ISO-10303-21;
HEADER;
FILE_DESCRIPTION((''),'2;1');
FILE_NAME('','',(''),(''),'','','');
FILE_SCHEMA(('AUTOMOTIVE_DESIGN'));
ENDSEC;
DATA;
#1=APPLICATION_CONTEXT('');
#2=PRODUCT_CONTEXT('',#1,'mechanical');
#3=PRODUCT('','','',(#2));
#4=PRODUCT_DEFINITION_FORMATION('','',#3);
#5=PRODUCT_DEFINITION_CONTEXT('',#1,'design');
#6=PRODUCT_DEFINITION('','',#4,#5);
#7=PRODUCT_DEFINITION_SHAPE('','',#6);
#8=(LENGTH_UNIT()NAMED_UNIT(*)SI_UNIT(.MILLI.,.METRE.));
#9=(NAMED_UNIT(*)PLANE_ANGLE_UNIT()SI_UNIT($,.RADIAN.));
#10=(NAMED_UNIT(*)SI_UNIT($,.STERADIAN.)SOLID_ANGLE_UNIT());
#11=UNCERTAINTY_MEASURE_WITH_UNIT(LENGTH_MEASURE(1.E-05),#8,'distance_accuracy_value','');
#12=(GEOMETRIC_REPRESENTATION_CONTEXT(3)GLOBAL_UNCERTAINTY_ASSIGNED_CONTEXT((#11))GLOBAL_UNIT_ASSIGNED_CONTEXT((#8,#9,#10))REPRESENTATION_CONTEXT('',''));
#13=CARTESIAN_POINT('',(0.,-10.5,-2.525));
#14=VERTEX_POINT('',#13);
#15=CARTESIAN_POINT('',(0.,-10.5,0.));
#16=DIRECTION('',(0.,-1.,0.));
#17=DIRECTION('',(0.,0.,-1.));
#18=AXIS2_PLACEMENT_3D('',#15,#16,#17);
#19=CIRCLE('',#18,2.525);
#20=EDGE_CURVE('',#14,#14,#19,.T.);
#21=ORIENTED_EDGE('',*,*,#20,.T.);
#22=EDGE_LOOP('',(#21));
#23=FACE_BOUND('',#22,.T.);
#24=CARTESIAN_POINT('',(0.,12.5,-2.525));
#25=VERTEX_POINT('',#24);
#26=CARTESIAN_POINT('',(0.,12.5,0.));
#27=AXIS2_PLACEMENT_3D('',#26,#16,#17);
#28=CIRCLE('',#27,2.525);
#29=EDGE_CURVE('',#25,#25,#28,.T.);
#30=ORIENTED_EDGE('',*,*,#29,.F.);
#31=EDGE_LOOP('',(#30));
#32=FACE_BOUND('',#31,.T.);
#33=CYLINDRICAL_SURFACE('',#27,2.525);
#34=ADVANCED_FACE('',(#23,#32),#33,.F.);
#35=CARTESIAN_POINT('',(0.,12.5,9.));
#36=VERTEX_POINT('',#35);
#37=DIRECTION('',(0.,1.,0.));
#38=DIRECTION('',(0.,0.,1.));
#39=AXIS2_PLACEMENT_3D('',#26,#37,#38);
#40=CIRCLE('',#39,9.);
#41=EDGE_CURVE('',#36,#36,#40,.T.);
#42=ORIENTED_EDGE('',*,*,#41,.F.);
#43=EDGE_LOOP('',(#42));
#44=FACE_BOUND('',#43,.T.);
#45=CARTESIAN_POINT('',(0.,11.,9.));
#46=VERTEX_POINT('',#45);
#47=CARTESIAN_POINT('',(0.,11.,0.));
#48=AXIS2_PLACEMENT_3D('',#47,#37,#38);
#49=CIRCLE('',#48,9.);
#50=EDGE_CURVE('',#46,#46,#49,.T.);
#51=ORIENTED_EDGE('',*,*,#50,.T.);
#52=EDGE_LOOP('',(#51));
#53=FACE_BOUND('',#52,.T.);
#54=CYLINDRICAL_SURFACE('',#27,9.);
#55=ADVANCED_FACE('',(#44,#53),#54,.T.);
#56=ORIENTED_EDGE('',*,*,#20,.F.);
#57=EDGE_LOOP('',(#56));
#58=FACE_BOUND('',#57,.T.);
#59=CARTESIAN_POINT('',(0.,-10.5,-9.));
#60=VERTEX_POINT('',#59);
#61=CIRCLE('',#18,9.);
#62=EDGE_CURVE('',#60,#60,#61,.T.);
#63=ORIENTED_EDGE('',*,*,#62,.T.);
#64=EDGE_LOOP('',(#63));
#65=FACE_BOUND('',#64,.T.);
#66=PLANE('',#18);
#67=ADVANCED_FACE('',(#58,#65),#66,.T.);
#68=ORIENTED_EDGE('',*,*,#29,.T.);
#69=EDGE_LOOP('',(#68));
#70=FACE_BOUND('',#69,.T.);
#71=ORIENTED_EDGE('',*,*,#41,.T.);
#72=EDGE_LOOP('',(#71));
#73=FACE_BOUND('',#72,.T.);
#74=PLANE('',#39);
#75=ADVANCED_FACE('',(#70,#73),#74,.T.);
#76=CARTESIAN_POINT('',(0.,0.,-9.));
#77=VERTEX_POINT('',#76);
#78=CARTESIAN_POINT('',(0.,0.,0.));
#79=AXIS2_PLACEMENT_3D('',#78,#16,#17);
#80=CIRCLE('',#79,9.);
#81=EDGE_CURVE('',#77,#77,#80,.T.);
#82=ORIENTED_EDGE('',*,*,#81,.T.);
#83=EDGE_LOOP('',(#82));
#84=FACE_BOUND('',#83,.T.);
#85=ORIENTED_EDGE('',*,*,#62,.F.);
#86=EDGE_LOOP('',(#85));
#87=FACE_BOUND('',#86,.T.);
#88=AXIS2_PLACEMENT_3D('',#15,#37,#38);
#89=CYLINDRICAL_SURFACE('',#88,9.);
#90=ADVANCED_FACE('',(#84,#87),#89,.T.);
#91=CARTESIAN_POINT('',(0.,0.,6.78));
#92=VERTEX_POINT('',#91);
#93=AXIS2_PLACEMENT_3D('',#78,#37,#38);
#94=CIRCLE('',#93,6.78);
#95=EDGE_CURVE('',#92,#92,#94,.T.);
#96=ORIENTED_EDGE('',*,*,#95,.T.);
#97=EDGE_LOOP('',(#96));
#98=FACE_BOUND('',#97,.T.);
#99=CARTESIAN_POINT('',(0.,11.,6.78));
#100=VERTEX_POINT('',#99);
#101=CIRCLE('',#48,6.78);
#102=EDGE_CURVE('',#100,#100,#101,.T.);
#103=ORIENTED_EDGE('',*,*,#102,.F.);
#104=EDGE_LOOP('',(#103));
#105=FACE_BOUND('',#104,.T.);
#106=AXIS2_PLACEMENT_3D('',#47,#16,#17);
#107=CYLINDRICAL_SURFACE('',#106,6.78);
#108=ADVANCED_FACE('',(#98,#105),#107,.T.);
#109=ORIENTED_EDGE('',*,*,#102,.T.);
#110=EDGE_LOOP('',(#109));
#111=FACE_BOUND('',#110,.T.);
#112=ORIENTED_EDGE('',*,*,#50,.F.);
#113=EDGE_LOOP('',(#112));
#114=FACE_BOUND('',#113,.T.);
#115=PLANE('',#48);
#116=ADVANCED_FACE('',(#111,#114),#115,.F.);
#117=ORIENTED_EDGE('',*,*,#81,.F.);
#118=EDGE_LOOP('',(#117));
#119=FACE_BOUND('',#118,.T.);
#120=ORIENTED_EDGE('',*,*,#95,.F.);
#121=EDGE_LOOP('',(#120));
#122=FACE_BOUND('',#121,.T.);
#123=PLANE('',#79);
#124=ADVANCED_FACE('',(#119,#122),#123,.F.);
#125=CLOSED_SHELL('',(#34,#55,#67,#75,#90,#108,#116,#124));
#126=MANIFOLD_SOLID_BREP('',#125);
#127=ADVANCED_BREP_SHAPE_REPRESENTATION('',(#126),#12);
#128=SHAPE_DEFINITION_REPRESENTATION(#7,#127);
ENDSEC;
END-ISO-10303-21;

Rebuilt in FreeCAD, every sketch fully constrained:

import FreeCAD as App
import Part
import Sketcher

doc = App.newDocument("Part")
params = doc.addObject("Spreadsheet::Sheet", "Params")
for row, (alias, value) in enumerate([
    ("sketch1_diameter", "13.56 mm"),
    ("pad1_length", "11 mm"),
    ("sketch2_diameter", "18 mm"),
    ("pad2_length", "1.5 mm"),
    ("sketch3_diameter", "18 mm"),
    ("pad3_length", "10.5 mm"),
    ("sketch4_diameter", "5.05 mm"),
], start=1):
    params.set(f"A{row}", alias)
    params.set(f"B{row}", "=" + value)
    params.setAlias(f"B{row}", alias)

body = doc.addObject("PartDesign::Body", "Body")

sketch1 = doc.addObject("Sketcher::SketchObject", "Sketch")
body.addObject(sketch1)
sketch1.AttachmentSupport = (doc.XZ_Plane, [""])
sketch1.MapMode = "FlatFace"
sketch1.addGeometry(Part.Circle(App.Vector(0, 0, 0), App.Vector(0, 0, 1), 7), False)
sketch1.addConstraint([
    Sketcher.Constraint("Coincident", 0, 3, -1, 1),
    Sketcher.Constraint("Diameter", 0, 13.56),
])
sketch1.setExpression("Constraints[1]", "Params.sketch1_diameter")
pad1 = doc.addObject("PartDesign::Pad", "Pad")
body.addObject(pad1)
pad1.Profile = sketch1
pad1.setExpression("Length", "Params.pad1_length")
pad1.Reversed = True

sketch2 = doc.addObject("Sketcher::SketchObject", "Sketch001")
body.addObject(sketch2)
sketch2.AttachmentSupport = (doc.XZ_Plane, [""])
sketch2.MapMode = "FlatFace"
sketch2.AttachmentOffset = App.Placement(App.Vector(0, 0, -11), App.Rotation())
sketch2.addGeometry(Part.Circle(App.Vector(0, 0, 0), App.Vector(0, 0, 1), 9), False)
sketch2.addConstraint([
    Sketcher.Constraint("Coincident", 0, 3, -1, 1),
    Sketcher.Constraint("Diameter", 0, 18.0),
])
sketch2.setExpression("Constraints[1]", "Params.sketch2_diameter")
pad2 = doc.addObject("PartDesign::Pad", "Pad001")
body.addObject(pad2)
pad2.Profile = sketch2
pad2.setExpression("Length", "Params.pad2_length")
pad2.Reversed = True

sketch3 = doc.addObject("Sketcher::SketchObject", "Sketch002")
body.addObject(sketch3)
sketch3.AttachmentSupport = (doc.XZ_Plane, [""])
sketch3.MapMode = "FlatFace"
sketch3.addGeometry(Part.Circle(App.Vector(0, 0, 0), App.Vector(0, 0, 1), 9), False)
sketch3.addConstraint([
    Sketcher.Constraint("Coincident", 0, 3, -1, 1),
    Sketcher.Constraint("Diameter", 0, 18.0),
])
sketch3.setExpression("Constraints[1]", "Params.sketch3_diameter")
pad3 = doc.addObject("PartDesign::Pad", "Pad002")
body.addObject(pad3)
pad3.Profile = sketch3
pad3.setExpression("Length", "Params.pad3_length")

sketch4 = doc.addObject("Sketcher::SketchObject", "Sketch003")
body.addObject(sketch4)
sketch4.AttachmentSupport = (doc.XZ_Plane, [""])
sketch4.MapMode = "FlatFace"
sketch4.AttachmentOffset = App.Placement(App.Vector(0, 0, 10.5), App.Rotation())
sketch4.addGeometry(Part.Circle(App.Vector(0, 0, 0), App.Vector(0, 0, 1), 2.5), False)
sketch4.addConstraint([
    Sketcher.Constraint("Coincident", 0, 3, -1, 1),
    Sketcher.Constraint("Diameter", 0, 5.05),
])
sketch4.setExpression("Constraints[1]", "Params.sketch4_diameter")
pocket1 = doc.addObject("PartDesign::Pocket", "Pocket")
body.addObject(pocket1)
pocket1.Profile = sketch4
pocket1.Type = "ThroughAll"

doc.recompute()
